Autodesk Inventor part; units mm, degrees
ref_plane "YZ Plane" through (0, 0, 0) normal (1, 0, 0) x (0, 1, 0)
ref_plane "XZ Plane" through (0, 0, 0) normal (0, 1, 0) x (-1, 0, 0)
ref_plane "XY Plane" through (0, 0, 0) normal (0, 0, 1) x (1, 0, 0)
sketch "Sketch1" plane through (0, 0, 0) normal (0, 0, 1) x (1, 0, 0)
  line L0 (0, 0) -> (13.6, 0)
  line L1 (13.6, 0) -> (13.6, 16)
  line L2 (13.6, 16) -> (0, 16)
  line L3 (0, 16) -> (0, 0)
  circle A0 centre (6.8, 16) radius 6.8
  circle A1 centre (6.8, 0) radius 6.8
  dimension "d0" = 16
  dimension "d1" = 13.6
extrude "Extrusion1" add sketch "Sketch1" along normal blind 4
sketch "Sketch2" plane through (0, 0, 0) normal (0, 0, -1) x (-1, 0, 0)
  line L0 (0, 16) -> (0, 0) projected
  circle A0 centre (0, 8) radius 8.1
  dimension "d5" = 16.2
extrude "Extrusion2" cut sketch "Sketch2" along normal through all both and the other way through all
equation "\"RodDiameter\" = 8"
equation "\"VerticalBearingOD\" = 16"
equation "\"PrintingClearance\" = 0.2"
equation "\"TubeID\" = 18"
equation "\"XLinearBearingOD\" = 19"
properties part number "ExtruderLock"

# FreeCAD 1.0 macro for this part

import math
import FreeCAD as App
import Part
import Sketcher

V = App.Vector
Q = App.Units.Quantity

doc = App.newDocument("Part")
body = doc.addObject("PartDesign::Body", "Body")

sketch1 = body.newObject("Sketcher::SketchObject", "Sketch")
sketch1.AttachmentSupport = (doc.getObject("XY_Plane"), [""])
sketch1.MapMode = "FlatFace"
sketch1.addGeometry([
    Part.LineSegment(V(0, 16, 0), V(0, 0, 0)),
    Part.ArcOfCircle(Part.Circle(V(7, 0, 0), V(0, 0, 1), 7), math.radians(180), math.radians(360)),
    Part.LineSegment(V(14, 0, 0), V(14, 16, 0)),
    Part.ArcOfCircle(Part.Circle(V(7, 16, 0), V(0, 0, 1), 7), math.radians(0), math.radians(180)),
], False)
sketch1.addConstraint([
    Sketcher.Constraint("Tangent", 0, 2, 1, 1),
    Sketcher.Constraint("Tangent", 1, 2, 2, 1),
    Sketcher.Constraint("Tangent", 2, 2, 3, 1),
    Sketcher.Constraint("Tangent", 3, 2, 0, 1),
    Sketcher.Constraint("Vertical", 0),
    Sketcher.Constraint("Vertical", 2),
    Sketcher.Constraint("Coincident", 0, 2, -1, 1),
    Sketcher.Constraint("Radius", 1, Q("6.8 mm")),
    Sketcher.Constraint("DistanceY", 0, 2, 0, 1, Q("16 mm")),
])
pad1 = body.newObject("PartDesign::Pad", "Pad")
pad1.Profile = sketch1
pad1.Length = 4

sketch2 = body.newObject("Sketcher::SketchObject", "Sketch001")
sketch2.AttachmentSupport = (doc.getObject("XY_Plane"), [""])
sketch2.MapMode = "FlatFace"
sketch2.addGeometry(Part.Circle(V(0, 8, 0), V(0, 0, 1), 8), False)
sketch2.addConstraint([
    Sketcher.Constraint("PointOnObject", 0, 3, -2),
    Sketcher.Constraint("Diameter", 0, Q("16.2 mm")),
    Sketcher.Constraint("DistanceY", -1, 1, 0, 3, Q("8 mm")),
])
pocket1 = body.newObject("PartDesign::Pocket", "Pocket")
pocket1.Profile = sketch2
pocket1.Type = "ThroughAll"
pocket1.Midplane = True

doc.recompute()
